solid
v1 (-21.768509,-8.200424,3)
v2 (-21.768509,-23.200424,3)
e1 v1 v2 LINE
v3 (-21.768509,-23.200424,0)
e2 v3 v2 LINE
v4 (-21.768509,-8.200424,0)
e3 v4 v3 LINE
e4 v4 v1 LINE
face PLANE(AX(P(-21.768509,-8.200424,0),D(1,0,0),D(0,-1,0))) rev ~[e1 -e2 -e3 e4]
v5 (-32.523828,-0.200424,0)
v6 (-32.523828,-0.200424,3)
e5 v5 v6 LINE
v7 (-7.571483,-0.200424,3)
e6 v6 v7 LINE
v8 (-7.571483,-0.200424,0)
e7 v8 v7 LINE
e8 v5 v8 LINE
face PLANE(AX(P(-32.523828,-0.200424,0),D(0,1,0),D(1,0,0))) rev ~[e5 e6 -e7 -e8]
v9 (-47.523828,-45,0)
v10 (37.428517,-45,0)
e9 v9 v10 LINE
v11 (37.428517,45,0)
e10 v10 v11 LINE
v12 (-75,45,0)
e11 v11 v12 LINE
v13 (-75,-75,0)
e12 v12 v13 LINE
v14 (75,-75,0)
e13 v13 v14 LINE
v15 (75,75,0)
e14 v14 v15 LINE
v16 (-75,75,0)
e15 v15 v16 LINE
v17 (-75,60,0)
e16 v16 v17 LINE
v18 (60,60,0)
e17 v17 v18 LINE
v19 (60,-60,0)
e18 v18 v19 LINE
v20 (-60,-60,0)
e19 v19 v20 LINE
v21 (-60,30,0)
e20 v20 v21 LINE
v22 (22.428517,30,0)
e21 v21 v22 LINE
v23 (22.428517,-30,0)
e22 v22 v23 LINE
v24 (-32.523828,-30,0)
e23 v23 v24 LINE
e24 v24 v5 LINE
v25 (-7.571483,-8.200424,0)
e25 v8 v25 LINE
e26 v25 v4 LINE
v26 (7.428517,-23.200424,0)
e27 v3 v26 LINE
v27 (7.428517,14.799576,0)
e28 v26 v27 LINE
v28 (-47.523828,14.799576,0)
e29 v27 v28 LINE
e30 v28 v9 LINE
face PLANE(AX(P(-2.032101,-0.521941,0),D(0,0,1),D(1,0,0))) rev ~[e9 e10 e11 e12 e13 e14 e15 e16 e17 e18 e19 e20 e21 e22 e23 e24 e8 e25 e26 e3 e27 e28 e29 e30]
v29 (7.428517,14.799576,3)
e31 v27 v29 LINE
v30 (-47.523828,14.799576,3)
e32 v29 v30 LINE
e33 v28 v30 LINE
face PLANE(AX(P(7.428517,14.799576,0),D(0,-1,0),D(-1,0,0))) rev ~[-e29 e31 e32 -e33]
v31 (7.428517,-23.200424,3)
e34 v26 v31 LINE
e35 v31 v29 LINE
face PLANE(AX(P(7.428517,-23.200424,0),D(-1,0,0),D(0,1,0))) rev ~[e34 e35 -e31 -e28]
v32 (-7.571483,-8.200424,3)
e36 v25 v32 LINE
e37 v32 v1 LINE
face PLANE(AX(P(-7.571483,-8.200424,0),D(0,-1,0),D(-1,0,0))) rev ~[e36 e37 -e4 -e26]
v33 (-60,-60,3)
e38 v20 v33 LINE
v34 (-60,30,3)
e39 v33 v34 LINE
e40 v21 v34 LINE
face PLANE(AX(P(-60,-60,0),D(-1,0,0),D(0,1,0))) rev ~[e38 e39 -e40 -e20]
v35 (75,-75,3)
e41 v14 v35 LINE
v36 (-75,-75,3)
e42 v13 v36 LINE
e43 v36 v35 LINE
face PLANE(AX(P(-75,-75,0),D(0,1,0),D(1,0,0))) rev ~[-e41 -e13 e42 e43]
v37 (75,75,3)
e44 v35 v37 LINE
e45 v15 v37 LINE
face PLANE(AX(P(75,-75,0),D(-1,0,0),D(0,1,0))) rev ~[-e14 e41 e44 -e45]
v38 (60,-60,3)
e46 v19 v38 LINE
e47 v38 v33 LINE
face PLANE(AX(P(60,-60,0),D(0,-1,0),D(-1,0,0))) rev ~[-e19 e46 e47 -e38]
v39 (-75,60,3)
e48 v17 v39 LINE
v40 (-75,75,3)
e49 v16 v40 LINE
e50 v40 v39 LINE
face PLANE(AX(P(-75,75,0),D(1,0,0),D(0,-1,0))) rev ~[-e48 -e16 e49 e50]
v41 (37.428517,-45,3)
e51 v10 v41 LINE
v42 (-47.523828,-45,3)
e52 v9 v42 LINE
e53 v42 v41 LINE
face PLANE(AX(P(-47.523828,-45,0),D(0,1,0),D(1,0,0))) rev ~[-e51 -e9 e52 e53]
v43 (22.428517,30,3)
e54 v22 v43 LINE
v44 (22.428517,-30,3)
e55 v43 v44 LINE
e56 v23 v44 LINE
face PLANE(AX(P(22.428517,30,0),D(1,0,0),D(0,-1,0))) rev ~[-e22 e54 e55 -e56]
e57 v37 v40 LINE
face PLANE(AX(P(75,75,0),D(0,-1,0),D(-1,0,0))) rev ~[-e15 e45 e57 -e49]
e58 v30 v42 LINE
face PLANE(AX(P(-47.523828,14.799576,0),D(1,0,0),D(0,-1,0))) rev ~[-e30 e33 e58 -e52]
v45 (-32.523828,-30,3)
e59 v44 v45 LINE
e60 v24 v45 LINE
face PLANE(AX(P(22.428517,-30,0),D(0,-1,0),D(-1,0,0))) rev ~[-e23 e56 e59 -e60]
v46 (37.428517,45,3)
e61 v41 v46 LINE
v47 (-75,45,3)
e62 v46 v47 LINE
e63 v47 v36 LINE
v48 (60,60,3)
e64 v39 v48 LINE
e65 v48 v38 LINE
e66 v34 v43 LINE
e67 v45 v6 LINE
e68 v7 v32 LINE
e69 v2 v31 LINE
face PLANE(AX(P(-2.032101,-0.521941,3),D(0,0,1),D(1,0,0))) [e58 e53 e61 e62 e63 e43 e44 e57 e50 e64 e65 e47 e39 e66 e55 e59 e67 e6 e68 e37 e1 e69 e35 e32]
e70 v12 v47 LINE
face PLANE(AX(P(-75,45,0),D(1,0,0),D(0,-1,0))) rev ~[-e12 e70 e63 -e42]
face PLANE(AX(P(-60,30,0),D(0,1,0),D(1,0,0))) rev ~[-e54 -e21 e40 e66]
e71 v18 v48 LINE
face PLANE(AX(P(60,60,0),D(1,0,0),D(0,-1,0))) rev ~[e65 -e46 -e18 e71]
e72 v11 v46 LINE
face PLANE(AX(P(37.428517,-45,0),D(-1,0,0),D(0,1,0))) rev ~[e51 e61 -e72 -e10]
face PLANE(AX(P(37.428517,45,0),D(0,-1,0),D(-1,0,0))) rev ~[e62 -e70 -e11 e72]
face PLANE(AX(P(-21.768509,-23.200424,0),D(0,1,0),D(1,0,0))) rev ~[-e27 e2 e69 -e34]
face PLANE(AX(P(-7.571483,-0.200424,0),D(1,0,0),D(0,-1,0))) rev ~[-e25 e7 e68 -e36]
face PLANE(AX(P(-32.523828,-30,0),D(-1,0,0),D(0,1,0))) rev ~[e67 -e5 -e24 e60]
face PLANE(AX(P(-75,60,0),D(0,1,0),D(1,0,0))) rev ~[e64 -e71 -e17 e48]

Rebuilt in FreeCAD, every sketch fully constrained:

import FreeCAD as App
import Part
import Sketcher
from FreeCAD import Vector

doc = App.newDocument("Part")
body = doc.addObject("PartDesign::Body", "Body")

sketch1 = body.newObject("Sketcher::SketchObject", "Sketch")
sketch1.AttachmentSupport = (doc.getObject("XY_Plane"), [""])
sketch1.MapMode = "FlatFace"
sketch1.addGeometry(Part.LineSegment(Vector(75, 75, 0), Vector(-75, 75, 0)), False)
sketch1.addGeometry(Part.LineSegment(Vector(-75, 75, 0), Vector(-75, 60, 0)), False)
sketch1.addGeometry(Part.LineSegment(Vector(-75, 60, 0), Vector(60, 60, 0)), False)
sketch1.addGeometry(Part.LineSegment(Vector(60, 60, 0), Vector(60, -60, 0)), False)
sketch1.addGeometry(Part.LineSegment(Vector(60, -60, 0), Vector(-60, -60, 0)), False)
sketch1.addGeometry(Part.LineSegment(Vector(-60, -60, 0), Vector(-60, 30, 0)), False)
sketch1.addGeometry(Part.LineSegment(Vector(-60, 30, 0), Vector(22, 30, 0)), False)
sketch1.addGeometry(Part.LineSegment(Vector(22, 30, 0), Vector(22, -30, 0)), False)
sketch1.addGeometry(Part.LineSegment(Vector(22, -30, 0), Vector(-33, -30, 0)), False)
sketch1.addGeometry(Part.LineSegment(Vector(-33, -30, 0), Vector(-33, 0, 0)), False)
sketch1.addGeometry(Part.LineSegment(Vector(-33, 0, 0), Vector(-8, 0, 0)), False)
sketch1.addGeometry(Part.LineSegment(Vector(-8, 0, 0), Vector(-8, -8, 0)), False)
sketch1.addGeometry(Part.LineSegment(Vector(-8, -8, 0), Vector(-22, -8, 0)), False)
sketch1.addGeometry(Part.LineSegment(Vector(-22, -8, 0), Vector(-22, -23, 0)), False)
sketch1.addGeometry(Part.LineSegment(Vector(-22, -23, 0), Vector(7, -23, 0)), False)
sketch1.addGeometry(Part.LineSegment(Vector(7, -23, 0), Vector(7, 15, 0)), False)
sketch1.addGeometry(Part.LineSegment(Vector(7, 15, 0), Vector(-48, 15, 0)), False)
sketch1.addGeometry(Part.LineSegment(Vector(-48, 15, 0), Vector(-48, -45, 0)), False)
sketch1.addGeometry(Part.LineSegment(Vector(-48, -45, 0), Vector(37, -45, 0)), False)
sketch1.addGeometry(Part.LineSegment(Vector(37, -45, 0), Vector(37, 45, 0)), False)
sketch1.addGeometry(Part.LineSegment(Vector(37, 45, 0), Vector(-75, 45, 0)), False)
sketch1.addGeometry(Part.LineSegment(Vector(-75, 45, 0), Vector(-75, -75, 0)), False)
sketch1.addGeometry(Part.LineSegment(Vector(-75, -75, 0), Vector(75, -75, 0)), False)
sketch1.addGeometry(Part.LineSegment(Vector(75, -75, 0), Vector(75, 75, 0)), False)
sketch1.addConstraint(Sketcher.Constraint("Coincident", 0, 2, 1, 1))
sketch1.addConstraint(Sketcher.Constraint("Coincident", 1, 2, 2, 1))
sketch1.addConstraint(Sketcher.Constraint("Coincident", 2, 2, 3, 1))
sketch1.addConstraint(Sketcher.Constraint("Coincident", 3, 2, 4, 1))
sketch1.addConstraint(Sketcher.Constraint("Coincident", 4, 2, 5, 1))
sketch1.addConstraint(Sketcher.Constraint("Coincident", 5, 2, 6, 1))
sketch1.addConstraint(Sketcher.Constraint("Coincident", 6, 2, 7, 1))
sketch1.addConstraint(Sketcher.Constraint("Coincident", 7, 2, 8, 1))
sketch1.addConstraint(Sketcher.Constraint("Coincident", 8, 2, 9, 1))
sketch1.addConstraint(Sketcher.Constraint("Coincident", 9, 2, 10, 1))
sketch1.addConstraint(Sketcher.Constraint("Coincident", 10, 2, 11, 1))
sketch1.addConstraint(Sketcher.Constraint("Coincident", 11, 2, 12, 1))
sketch1.addConstraint(Sketcher.Constraint("Coincident", 12, 2, 13, 1))
sketch1.addConstraint(Sketcher.Constraint("Coincident", 13, 2, 14, 1))
sketch1.addConstraint(Sketcher.Constraint("Coincident", 14, 2, 15, 1))
sketch1.addConstraint(Sketcher.Constraint("Coincident", 15, 2, 16, 1))
sketch1.addConstraint(Sketcher.Constraint("Coincident", 16, 2, 17, 1))
sketch1.addConstraint(Sketcher.Constraint("Coincident", 17, 2, 18, 1))
sketch1.addConstraint(Sketcher.Constraint("Coincident", 18, 2, 19, 1))
sketch1.addConstraint(Sketcher.Constraint("Coincident", 19, 2, 20, 1))
sketch1.addConstraint(Sketcher.Constraint("Coincident", 20, 2, 21, 1))
sketch1.addConstraint(Sketcher.Constraint("Coincident", 21, 2, 22, 1))
sketch1.addConstraint(Sketcher.Constraint("Coincident", 22, 2, 23, 1))
sketch1.addConstraint(Sketcher.Constraint("Coincident", 23, 2, 0, 1))
sketch1.addConstraint(Sketcher.Constraint("Horizontal", 0))
sketch1.addConstraint(Sketcher.Constraint("Vertical", 1))
sketch1.addConstraint(Sketcher.Constraint("Horizontal", 2))
sketch1.addConstraint(Sketcher.Constraint("Vertical", 3))
sketch1.addConstraint(Sketcher.Constraint("Horizontal", 4))
sketch1.addConstraint(Sketcher.Constraint("Vertical", 5))
sketch1.addConstraint(Sketcher.Constraint("Horizontal", 6))
sketch1.addConstraint(Sketcher.Constraint("Vertical", 7))
sketch1.addConstraint(Sketcher.Constraint("Horizontal", 8))
sketch1.addConstraint(Sketcher.Constraint("Vertical", 9))
sketch1.addConstraint(Sketcher.Constraint("Horizontal", 10))
sketch1.addConstraint(Sketcher.Constraint("Vertical", 11))
sketch1.addConstraint(Sketcher.Constraint("Horizontal", 12))
sketch1.addConstraint(Sketcher.Constraint("Vertical", 13))
sketch1.addConstraint(Sketcher.Constraint("Horizontal", 14))
sketch1.addConstraint(Sketcher.Constraint("Vertical", 15))
sketch1.addConstraint(Sketcher.Constraint("Horizontal", 16))
sketch1.addConstraint(Sketcher.Constraint("Vertical", 17))
sketch1.addConstraint(Sketcher.Constraint("Horizontal", 18))
sketch1.addConstraint(Sketcher.Constraint("Vertical", 19))
sketch1.addConstraint(Sketcher.Constraint("Horizontal", 20))
sketch1.addConstraint(Sketcher.Constraint("Vertical", 21))
sketch1.addConstraint(Sketcher.Constraint("Horizontal", 22))
sketch1.addConstraint(Sketcher.Constraint("Vertical", 23))
sketch1.addConstraint(Sketcher.Constraint("Symmetric", 2, 2, 4, 2, -1, 1))
sketch1.addConstraint(Sketcher.Constraint("Symmetric", 0, 2, 22, 2, -1, 1))
sketch1.addConstraint(Sketcher.Constraint("Vertical", 1, 2, 20, 2))
sketch1.addConstraint(Sketcher.Constraint("Equal", 8, 16))
sketch1.addConstraint(Sketcher.Constraint("Equal", 4, 3))
sketch1.addConstraint(Sketcher.Constraint("Equal", 1, 13))
sketch1.addConstraint(Sketcher.Constraint("Equal", 5, 19))
sketch1.addConstraint(Sketcher.Constraint("Equal", 3, 21))
sketch1.addConstraint(Sketcher.Constraint("Equal", 22, 23))
sketch1.addConstraint(Sketcher.Constraint("DistanceX", 0, 2, 0, 1, 150.0))
sketch1.addConstraint(Sketcher.Constraint("DistanceX", 2, 1, 2, 2, 135.0))
sketch1.addConstraint(Sketcher.Constraint("DistanceY", 5, 1, 5, 2, 90.0))
sketch1.addConstraint(Sketcher.Constraint("DistanceY", 7, 2, 7, 1, 60.0))
sketch1.addConstraint(Sketcher.Constraint("DistanceY", 11, 2, 11, 1, 8.0))
sketch1.addConstraint(Sketcher.Constraint("DistanceY", 15, 1, 15, 2, 38.0))
sketch1.addConstraint(Sketcher.Constraint("DistanceX", 10, 2, 7, 2, 30.0))
sketch1.addConstraint(Sketcher.Constraint("DistanceX", 14, 2, 7, 2, 15.0))
sketch1.addConstraint(Sketcher.Constraint("DistanceX", 7, 2, 18, 2, 15.0))
sketch1.addConstraint(Sketcher.Constraint("DistanceX", 6, 1, 6, 2, 82.428517))
sketch1.addConstraint(Sketcher.Constraint("DistanceX", 8, 2, 8, 1, 54.952345))
sketch1.addConstraint(Sketcher.Constraint("DistanceX", 12, 2, 12, 1, 14.197026))
sketch1.addConstraint(Sketcher.Constraint("DistanceY", 9, 1, 9, 2, 29.799576))
pad1 = body.newObject("PartDesign::Pad", "Pad")
pad1.Profile = sketch1
pad1.Length = 3

doc.recompute()
